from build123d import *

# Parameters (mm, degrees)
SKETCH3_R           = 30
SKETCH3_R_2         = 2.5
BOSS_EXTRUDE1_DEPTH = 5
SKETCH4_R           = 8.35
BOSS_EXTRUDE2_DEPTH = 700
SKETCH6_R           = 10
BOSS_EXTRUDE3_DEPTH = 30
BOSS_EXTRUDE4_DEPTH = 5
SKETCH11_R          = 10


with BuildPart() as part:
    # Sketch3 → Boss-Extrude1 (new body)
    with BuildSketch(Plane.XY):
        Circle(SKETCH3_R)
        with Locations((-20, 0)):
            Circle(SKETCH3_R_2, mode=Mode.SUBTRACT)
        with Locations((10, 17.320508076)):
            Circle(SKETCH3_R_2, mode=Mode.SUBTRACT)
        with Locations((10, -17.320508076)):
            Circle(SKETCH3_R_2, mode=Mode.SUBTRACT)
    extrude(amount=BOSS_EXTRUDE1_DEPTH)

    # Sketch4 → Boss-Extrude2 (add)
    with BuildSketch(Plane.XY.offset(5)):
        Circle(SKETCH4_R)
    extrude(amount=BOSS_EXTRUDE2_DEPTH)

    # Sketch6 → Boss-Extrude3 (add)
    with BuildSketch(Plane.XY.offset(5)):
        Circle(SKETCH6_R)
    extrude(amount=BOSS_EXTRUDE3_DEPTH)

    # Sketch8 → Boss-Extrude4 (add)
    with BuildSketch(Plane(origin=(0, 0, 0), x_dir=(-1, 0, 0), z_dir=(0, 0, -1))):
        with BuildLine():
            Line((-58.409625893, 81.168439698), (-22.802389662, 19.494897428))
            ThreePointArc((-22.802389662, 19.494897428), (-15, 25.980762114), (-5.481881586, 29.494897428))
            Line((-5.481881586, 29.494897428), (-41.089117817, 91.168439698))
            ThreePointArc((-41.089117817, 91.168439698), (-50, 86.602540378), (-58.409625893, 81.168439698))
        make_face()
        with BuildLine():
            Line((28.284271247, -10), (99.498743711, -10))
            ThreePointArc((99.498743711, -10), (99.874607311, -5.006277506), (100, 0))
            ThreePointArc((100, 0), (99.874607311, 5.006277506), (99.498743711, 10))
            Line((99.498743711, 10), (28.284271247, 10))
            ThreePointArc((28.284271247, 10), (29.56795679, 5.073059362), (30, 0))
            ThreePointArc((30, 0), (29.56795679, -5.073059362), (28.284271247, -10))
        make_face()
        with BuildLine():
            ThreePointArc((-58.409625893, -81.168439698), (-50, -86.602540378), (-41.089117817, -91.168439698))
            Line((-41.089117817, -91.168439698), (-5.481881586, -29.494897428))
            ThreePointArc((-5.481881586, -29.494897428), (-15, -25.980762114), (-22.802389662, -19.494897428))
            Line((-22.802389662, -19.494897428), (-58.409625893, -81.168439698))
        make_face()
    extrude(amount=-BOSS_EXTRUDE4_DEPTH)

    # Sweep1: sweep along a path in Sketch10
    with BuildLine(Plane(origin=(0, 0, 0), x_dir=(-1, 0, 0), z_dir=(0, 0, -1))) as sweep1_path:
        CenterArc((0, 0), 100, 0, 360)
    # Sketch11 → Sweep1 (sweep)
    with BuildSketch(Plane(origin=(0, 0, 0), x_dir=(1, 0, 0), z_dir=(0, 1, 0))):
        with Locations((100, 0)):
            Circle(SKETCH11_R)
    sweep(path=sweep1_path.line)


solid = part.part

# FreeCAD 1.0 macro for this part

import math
import FreeCAD as App
import Part
import Sketcher
Q = App.Units.Quantity

doc = App.newDocument("Part")
body = doc.addObject("PartDesign::Body", "Body")

# Sketch on XY plane
sketch1 = body.newObject("Sketcher::SketchObject", "Sketch")
sketch1.AttachmentSupport = (doc.getObject("XY_Plane"), [""])
sketch1.MapMode = "FlatFace"
sketch1.addGeometry([
    Part.Circle(App.Vector(0, 0, 0), App.Vector(0, 0, 1), 30),
    Part.Circle(App.Vector(10, -17.3, 0), App.Vector(0, 0, 1), 2.5),
    Part.Circle(App.Vector(-20, 0, 0), App.Vector(0, 0, 1), 2.5),
    Part.Circle(App.Vector(10, 17.3, 0), App.Vector(0, 0, 1), 2.5),
], False)
sketch1.addConstraint([
    Sketcher.Constraint("Coincident", 0, 3, -1, 1),
    Sketcher.Constraint("Equal", 1, 2),
    Sketcher.Constraint("Equal", 2, 3),
    Sketcher.Constraint("Symmetric", 1, 3, 3, 3, -1),
    Sketcher.Constraint("PointOnObject", 2, 3, -1),
    Sketcher.Constraint("Diameter", 0, Q("60 mm")),
    Sketcher.Constraint("Diameter", 1, Q("5 mm")),
    Sketcher.Constraint("DistanceX", -1, 1, 1, 3, Q("10 mm")),
    Sketcher.Constraint("DistanceX", 2, 3, -1, 1, Q("20 mm")),
    Sketcher.Constraint("DistanceY", 1, 3, -1, 1, Q("17.320508 mm")),
])
pad1 = body.newObject("PartDesign::Pad", "Pad")
pad1.Profile = sketch1
pad1.Length = 5

# Sketch on XY plane
sketch2 = body.newObject("Sketcher::SketchObject", "Sketch001")
sketch2.AttachmentSupport = (doc.getObject("XY_Plane"), [""])
sketch2.MapMode = "FlatFace"
sketch2.AttachmentOffset = App.Placement(App.Vector(0, 0, 5), App.Rotation())
sketch2.addGeometry(Part.Circle(App.Vector(0, 0, 0), App.Vector(0, 0, 1), 8), False)
sketch2.addConstraint([
    Sketcher.Constraint("Coincident", 0, 3, -1, 1),
    Sketcher.Constraint("Diameter", 0, Q("16.7 mm")),
])
pad2 = body.newObject("PartDesign::Pad", "Pad001")
pad2.Profile = sketch2
pad2.Length = 700

# Sketch on XY plane
sketch3 = body.newObject("Sketcher::SketchObject", "Sketch002")
sketch3.AttachmentSupport = (doc.getObject("XY_Plane"), [""])
sketch3.MapMode = "FlatFace"
sketch3.AttachmentOffset = App.Placement(App.Vector(0, 0, 5), App.Rotation())
sketch3.addGeometry(Part.Circle(App.Vector(0, 0, 0), App.Vector(0, 0, 1), 10), False)
sketch3.addConstraint([
    Sketcher.Constraint("Coincident", 0, 3, -1, 1),
    Sketcher.Constraint("Diameter", 0, Q("20 mm")),
])
pad3 = body.newObject("PartDesign::Pad", "Pad002")
pad3.Profile = sketch3
pad3.Length = 30

# Sketch on XY plane
sketch4 = body.newObject("Sketcher::SketchObject", "Sketch003")
sketch4.AttachmentSupport = (doc.getObject("XY_Plane"), [""])
sketch4.MapMode = "FlatFace"
sketch4.addGeometry([
    Part.LineSegment(App.Vector(58, 81, 0), App.Vector(23, 19, 0)),  # 0
    Part.ArcOfCircle(Part.Circle(App.Vector(0, 0, 0), App.Vector(0, 0, 1), 30), math.radians(41), math.radians(79)),  # 1
    Part.LineSegment(App.Vector(5, 29, 0), App.Vector(41, 91, 0)),  # 2
    Part.ArcOfCircle(Part.Circle(App.Vector(0, 0, 0), App.Vector(0, 0, 1), 100), math.radians(54.26), math.radians(65.74)),  # 3
    Part.LineSegment(App.Vector(-28, -10, 0), App.Vector(-99, -10, 0)),  # 4
    Part.ArcOfCircle(Part.Circle(App.Vector(0, 0, 0), App.Vector(0, 0, 1), 100), math.radians(-180), math.radians(-174.26)),  # 5
    Part.ArcOfCircle(Part.Circle(App.Vector(0, 0, 0), App.Vector(0, 0, 1), 100), math.radians(174.26), math.radians(180)),  # 6
    Part.LineSegment(App.Vector(-99, 10, 0), App.Vector(-28, 10, 0)),  # 7
    Part.ArcOfCircle(Part.Circle(App.Vector(0, 0, 0), App.Vector(0, 0, 1), 30), math.radians(160.53), math.radians(180)),  # 8
    Part.ArcOfCircle(Part.Circle(App.Vector(0, 0, 0), App.Vector(0, 0, 1), 30), math.radians(180), math.radians(199.47)),  # 9
    Part.ArcOfCircle(Part.Circle(App.Vector(0, 0, 0), App.Vector(0, 0, 1), 100), math.radians(-65.74), math.radians(-54.26)),  # 10
    Part.LineSegment(App.Vector(41, -91, 0), App.Vector(5, -29, 0)),  # 11
    Part.ArcOfCircle(Part.Circle(App.Vector(0, 0, 0), App.Vector(0, 0, 1), 30), math.radians(-79), math.radians(-41)),  # 12
    Part.LineSegment(App.Vector(23, -19, 0), App.Vector(58, -81, 0)),  # 13
], False)
sketch4.addConstraint([
    Sketcher.Constraint("Coincident", 0, 2, 1, 1),
    Sketcher.Constraint("Coincident", 1, 2, 2, 1),
    Sketcher.Constraint("Coincident", 2, 2, 3, 2),
    Sketcher.Constraint("Coincident", 3, 1, 0, 1),
    Sketcher.Constraint("Coincident", 4, 2, 5, 2),
    Sketcher.Constraint("Tangent", 5, 1, 6, 2),
    Sketcher.Constraint("Coincident", 6, 1, 7, 1),
    Sketcher.Constraint("Coincident", 7, 2, 8, 1),
    Sketcher.Constraint("Tangent", 8, 2, 9, 1),
    Sketcher.Constraint("Coincident", 9, 2, 4, 1),
    Sketcher.Constraint("Coincident", 10, 1, 11, 1),
    Sketcher.Constraint("Coincident", 11, 2, 12, 1),
    Sketcher.Constraint("Coincident", 12, 2, 13, 1),
    Sketcher.Constraint("Coincident", 13, 2, 10, 2),
    Sketcher.Constraint("Horizontal", 4),
    Sketcher.Constraint("Horizontal", 7),
    Sketcher.Constraint("Coincident", 1, 3, -1, 1),
    Sketcher.Constraint("Coincident", 3, 3, -1, 1),
    Sketcher.Constraint("Coincident", 5, 3, -1, 1),
    Sketcher.Constraint("Coincident", 8, 3, -1, 1),
    Sketcher.Constraint("Coincident", 10, 3, -1, 1),
    Sketcher.Constraint("Coincident", 12, 3, -1, 1),
    Sketcher.Constraint("Equal", 3, 5),
    Sketcher.Constraint("Equal", 5, 6),
    Sketcher.Constraint("Equal", 1, 8),
    Sketcher.Constraint("Equal", 8, 9),
    Sketcher.Constraint("Equal", 6, 10),
    Sketcher.Constraint("Equal", 9, 12),
    Sketcher.Constraint("PointOnObject", 5, 1, -1),
    Sketcher.Constraint("PointOnObject", 8, 2, -1),
    Sketcher.Constraint("Parallel", 0, 2),
    Sketcher.Constraint("Parallel", 11, 13),
    Sketcher.Constraint("Vertical", 4, 2, 6, 1),
    Sketcher.Constraint("Vertical", 2, 2, 10, 1),
    Sketcher.Constraint("Vertical", 1, 2, 11, 2),
    Sketcher.Constraint("Vertical", 0, 2, 12, 2),
    Sketcher.Constraint("Equal", 0, 2),
    Sketcher.Constraint("Radius", 1, Q("30 mm")),
    Sketcher.Constraint("Radius", 3, Q("100 mm")),
    Sketcher.Constraint("Angle", 0, Q("-120 deg")),
    Sketcher.Constraint("DistanceY", 4, 2, -1, 1, Q("10 mm")),
    Sketcher.Constraint("DistanceY", 0, 2, 1, 2, Q("10 mm")),
])
pad4 = body.newObject("PartDesign::Pad", "Pad003")
pad4.Profile = sketch4
pad4.Length = 5

# Sketch on XZ plane
sketch5 = body.newObject("Sketcher::SketchObject", "Sketch004")
sketch5.AttachmentSupport = (doc.getObject("XZ_Plane"), [""])
sketch5.MapMode = "FlatFace"
sketch5.addGeometry(Part.Circle(App.Vector(100, 0, 0), App.Vector(0, 0, 1), 10), False)
sketch5.addConstraint([
    Sketcher.Constraint("PointOnObject", 0, 3, -1),
    Sketcher.Constraint("Diameter", 0, Q("20 mm")),
    Sketcher.Constraint("DistanceX", -1, 1, 0, 3, Q("100 mm")),
])

# Sketch on XY plane
sketch6 = body.newObject("Sketcher::SketchObject", "Sketch005")
sketch6.AttachmentSupport = (doc.getObject("XY_Plane"), [""])
sketch6.MapMode = "FlatFace"
sketch6.addGeometry(Part.Circle(App.Vector(0, 0, 0), App.Vector(0, 0, 1), 100), False)
sketch6.addConstraint([
    Sketcher.Constraint("Coincident", 0, 3, -1, 1),
    Sketcher.Constraint("Diameter", 0, Q("200 mm")),
])
doc.recompute()

additivepipe = body.newObject("PartDesign::AdditivePipe", "AdditivePipe")
additivepipe.Profile = sketch5
additivepipe.Spine = (sketch6, ["Edge1"])

doc.recompute()
